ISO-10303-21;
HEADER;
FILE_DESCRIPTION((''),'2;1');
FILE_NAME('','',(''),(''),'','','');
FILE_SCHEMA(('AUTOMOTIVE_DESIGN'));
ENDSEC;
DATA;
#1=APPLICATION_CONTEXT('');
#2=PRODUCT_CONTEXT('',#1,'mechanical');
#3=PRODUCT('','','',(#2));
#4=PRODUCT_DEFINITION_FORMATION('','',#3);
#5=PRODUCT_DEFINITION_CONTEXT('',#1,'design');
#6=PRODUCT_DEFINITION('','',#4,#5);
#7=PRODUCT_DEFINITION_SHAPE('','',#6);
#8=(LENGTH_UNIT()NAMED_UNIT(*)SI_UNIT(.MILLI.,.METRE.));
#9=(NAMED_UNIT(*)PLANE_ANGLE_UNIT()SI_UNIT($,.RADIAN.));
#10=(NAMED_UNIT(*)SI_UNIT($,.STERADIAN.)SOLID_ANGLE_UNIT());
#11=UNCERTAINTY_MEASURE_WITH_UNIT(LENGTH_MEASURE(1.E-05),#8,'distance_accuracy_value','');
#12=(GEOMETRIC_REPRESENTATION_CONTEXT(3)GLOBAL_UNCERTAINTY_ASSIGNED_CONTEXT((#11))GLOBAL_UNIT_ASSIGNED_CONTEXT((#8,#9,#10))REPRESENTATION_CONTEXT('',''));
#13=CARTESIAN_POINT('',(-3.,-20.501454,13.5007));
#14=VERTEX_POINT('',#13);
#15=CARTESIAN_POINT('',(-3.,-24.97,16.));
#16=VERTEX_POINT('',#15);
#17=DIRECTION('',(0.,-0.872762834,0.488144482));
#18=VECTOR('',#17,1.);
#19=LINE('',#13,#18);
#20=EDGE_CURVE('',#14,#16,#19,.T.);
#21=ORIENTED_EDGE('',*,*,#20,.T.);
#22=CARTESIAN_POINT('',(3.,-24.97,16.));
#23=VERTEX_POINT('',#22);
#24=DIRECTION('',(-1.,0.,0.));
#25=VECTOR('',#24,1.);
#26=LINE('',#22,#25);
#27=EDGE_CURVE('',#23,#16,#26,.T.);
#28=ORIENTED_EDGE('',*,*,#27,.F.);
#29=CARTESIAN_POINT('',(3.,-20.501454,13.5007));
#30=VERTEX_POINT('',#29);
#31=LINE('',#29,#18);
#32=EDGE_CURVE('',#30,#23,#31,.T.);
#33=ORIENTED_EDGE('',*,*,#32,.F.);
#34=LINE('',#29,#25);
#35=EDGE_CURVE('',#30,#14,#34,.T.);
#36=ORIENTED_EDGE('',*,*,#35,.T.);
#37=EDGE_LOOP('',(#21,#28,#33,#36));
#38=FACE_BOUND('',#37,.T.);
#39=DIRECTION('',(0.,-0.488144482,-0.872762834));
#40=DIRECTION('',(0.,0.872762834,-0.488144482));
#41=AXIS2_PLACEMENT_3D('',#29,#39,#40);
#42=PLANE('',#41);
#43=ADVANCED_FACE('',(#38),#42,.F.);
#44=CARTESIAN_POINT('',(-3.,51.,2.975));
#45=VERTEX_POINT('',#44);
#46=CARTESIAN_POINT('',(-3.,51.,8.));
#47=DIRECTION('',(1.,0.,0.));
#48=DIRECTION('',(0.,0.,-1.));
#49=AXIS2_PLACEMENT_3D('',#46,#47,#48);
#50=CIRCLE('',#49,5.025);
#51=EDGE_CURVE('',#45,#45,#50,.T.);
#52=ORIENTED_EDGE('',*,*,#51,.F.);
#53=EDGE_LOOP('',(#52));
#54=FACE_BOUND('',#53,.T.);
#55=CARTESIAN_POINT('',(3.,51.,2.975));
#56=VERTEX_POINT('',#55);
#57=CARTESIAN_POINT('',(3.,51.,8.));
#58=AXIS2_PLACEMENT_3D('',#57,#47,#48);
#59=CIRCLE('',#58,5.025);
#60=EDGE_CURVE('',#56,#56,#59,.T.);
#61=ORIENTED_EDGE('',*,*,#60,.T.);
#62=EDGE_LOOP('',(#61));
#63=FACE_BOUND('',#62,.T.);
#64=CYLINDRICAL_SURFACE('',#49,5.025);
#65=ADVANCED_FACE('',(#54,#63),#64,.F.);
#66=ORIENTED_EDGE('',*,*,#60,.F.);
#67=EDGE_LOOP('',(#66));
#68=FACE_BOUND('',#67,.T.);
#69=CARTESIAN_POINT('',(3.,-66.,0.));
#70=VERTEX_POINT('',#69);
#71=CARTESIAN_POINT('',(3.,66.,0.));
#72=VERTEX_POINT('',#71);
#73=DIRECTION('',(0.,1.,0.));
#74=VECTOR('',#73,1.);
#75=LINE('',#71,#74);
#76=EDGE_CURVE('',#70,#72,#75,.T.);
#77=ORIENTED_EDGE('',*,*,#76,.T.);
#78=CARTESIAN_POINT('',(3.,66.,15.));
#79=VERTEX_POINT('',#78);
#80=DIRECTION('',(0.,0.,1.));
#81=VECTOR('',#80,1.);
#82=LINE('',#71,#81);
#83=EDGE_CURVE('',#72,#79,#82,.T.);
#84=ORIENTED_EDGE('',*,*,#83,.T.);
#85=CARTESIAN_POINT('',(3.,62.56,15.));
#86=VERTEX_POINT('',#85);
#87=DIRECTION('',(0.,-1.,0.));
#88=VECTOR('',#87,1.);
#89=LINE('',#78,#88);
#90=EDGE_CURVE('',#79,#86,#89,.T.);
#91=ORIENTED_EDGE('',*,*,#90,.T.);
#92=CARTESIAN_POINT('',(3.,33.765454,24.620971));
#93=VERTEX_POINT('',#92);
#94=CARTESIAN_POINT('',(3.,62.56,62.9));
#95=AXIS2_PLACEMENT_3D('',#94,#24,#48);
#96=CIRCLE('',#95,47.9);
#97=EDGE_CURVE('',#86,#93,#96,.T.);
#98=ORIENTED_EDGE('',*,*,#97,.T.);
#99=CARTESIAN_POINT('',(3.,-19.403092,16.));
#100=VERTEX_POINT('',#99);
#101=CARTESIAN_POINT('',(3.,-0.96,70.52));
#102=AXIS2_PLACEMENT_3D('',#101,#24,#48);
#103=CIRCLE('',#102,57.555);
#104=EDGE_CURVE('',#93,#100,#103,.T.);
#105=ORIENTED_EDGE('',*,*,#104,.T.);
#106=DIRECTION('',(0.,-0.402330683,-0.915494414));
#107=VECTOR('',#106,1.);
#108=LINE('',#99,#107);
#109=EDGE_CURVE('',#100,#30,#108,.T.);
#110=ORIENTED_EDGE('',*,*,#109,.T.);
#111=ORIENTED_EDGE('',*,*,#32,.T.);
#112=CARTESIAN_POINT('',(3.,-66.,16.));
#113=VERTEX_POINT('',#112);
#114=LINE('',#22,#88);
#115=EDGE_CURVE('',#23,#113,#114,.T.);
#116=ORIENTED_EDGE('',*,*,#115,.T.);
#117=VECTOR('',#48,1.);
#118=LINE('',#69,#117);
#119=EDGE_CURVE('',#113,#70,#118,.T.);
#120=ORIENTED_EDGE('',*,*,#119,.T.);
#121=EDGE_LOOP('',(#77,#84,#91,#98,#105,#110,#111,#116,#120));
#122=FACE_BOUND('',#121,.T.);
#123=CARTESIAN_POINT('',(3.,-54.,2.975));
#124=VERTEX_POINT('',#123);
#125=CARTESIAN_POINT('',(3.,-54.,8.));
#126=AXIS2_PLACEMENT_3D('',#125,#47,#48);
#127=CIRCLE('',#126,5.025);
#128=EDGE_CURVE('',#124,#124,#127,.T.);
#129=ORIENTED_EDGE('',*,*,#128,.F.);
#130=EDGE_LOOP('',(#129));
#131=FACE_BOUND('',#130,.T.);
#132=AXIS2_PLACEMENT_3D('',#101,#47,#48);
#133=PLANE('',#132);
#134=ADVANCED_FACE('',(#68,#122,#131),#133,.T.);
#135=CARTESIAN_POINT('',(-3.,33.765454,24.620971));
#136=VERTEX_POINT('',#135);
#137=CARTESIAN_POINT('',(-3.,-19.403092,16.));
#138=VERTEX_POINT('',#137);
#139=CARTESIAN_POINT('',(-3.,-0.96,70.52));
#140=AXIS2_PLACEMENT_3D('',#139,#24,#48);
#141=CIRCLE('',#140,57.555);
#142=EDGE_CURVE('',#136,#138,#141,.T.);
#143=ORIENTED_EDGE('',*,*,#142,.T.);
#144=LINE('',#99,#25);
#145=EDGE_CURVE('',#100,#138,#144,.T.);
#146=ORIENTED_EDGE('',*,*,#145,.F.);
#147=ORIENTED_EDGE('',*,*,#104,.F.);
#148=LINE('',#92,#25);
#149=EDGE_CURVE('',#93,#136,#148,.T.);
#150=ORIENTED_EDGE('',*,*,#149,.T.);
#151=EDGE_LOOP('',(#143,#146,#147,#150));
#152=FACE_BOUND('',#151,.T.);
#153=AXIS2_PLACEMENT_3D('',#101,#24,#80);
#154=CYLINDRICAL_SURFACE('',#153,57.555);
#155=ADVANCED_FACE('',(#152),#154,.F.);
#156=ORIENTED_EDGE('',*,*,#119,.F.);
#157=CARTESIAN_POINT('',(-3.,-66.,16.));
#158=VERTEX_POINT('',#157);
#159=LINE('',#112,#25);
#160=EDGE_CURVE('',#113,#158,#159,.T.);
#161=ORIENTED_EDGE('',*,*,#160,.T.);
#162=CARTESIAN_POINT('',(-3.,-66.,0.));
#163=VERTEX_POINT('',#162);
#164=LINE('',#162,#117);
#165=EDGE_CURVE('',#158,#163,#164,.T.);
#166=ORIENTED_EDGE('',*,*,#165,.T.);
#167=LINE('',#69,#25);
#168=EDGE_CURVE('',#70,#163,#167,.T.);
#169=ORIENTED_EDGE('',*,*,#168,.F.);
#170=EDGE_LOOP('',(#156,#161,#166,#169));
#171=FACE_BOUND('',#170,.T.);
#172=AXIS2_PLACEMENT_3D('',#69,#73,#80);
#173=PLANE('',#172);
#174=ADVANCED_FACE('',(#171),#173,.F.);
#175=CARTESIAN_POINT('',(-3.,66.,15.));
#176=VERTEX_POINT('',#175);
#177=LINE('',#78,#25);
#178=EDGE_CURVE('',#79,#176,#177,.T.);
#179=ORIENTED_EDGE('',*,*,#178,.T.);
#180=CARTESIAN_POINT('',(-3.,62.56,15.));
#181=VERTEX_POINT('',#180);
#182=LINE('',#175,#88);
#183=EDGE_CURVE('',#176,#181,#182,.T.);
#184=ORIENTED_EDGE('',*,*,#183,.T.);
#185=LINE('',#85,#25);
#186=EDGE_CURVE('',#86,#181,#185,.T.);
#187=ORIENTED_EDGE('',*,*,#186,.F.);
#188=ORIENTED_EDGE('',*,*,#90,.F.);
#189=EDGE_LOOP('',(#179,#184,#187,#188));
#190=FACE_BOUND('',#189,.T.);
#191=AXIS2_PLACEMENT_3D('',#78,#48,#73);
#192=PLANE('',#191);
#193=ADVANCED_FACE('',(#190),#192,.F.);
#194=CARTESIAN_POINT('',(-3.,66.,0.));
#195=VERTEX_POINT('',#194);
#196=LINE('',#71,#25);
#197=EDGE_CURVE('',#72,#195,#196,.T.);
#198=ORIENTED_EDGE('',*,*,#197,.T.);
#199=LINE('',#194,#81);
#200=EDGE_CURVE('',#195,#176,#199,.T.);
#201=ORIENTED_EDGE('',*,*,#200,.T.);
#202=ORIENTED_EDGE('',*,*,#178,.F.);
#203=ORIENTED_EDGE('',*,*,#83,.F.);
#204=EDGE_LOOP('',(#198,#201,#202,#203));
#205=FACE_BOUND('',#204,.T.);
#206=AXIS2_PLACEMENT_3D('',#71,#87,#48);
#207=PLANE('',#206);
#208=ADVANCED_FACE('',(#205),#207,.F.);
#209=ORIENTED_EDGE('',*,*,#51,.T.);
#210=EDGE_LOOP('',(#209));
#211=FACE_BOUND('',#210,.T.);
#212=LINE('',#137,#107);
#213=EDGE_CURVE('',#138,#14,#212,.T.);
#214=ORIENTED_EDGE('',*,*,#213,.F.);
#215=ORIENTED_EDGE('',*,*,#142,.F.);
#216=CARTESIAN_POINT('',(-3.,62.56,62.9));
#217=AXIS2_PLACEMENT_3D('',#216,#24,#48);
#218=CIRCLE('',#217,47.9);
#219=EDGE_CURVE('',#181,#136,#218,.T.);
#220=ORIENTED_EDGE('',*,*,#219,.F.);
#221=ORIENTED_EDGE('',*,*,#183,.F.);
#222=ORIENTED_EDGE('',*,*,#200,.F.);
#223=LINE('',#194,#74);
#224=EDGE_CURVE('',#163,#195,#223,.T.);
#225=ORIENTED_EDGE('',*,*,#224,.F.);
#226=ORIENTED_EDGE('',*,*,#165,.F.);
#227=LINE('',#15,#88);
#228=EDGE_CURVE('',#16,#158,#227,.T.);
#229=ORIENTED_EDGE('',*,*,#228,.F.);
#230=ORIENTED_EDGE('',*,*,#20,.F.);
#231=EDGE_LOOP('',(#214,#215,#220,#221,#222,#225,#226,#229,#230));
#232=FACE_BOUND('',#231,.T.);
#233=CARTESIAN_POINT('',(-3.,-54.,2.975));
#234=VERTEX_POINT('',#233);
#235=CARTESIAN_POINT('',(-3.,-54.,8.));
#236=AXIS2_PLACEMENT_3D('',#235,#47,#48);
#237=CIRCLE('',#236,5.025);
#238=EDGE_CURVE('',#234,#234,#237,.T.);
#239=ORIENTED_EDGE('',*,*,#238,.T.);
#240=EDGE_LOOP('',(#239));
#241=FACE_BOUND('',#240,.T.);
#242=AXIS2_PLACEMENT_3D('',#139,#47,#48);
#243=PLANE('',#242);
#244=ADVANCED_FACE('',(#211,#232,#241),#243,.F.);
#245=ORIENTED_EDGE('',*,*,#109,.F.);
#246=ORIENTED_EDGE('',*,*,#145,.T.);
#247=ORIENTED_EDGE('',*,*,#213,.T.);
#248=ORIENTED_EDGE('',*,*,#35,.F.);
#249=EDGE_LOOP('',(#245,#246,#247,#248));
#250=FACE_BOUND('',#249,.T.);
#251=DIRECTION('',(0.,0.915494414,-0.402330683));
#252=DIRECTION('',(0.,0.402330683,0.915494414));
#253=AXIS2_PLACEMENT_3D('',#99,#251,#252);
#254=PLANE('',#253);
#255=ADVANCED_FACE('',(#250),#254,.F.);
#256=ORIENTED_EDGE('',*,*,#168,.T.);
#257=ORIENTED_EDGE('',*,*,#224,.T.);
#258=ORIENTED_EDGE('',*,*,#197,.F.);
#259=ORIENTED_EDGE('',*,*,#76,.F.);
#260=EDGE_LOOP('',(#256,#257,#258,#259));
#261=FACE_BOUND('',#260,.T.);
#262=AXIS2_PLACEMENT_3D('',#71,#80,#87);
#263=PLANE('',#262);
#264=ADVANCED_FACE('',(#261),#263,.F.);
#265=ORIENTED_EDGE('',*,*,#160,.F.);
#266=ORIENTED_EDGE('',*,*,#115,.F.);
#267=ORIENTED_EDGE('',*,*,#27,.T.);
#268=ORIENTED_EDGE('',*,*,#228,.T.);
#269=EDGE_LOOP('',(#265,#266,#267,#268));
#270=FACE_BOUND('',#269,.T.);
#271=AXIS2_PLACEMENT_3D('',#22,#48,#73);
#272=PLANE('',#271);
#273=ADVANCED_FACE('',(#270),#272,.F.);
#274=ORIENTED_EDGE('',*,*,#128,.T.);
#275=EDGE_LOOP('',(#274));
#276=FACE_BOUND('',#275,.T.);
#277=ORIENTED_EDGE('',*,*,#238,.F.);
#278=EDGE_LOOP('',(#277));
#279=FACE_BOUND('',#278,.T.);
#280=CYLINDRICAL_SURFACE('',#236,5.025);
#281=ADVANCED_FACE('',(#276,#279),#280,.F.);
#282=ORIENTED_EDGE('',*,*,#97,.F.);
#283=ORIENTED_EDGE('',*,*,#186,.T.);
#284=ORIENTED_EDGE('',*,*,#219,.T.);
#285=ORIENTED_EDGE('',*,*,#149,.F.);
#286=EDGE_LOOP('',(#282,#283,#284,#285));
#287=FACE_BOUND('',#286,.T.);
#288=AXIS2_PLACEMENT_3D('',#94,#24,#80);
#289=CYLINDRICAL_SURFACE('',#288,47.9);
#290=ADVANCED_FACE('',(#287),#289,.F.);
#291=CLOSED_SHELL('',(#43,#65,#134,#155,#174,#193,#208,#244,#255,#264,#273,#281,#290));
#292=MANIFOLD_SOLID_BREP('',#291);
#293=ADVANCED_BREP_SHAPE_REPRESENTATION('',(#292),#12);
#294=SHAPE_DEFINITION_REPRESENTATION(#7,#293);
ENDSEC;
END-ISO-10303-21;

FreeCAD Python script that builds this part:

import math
import FreeCAD as App
import Part
import Sketcher
from FreeCAD import Vector
Q = App.Units.Quantity

doc = App.newDocument("Part")
body = doc.addObject("PartDesign::Body", "Body")

# Sketch on YZ plane
sketch1 = body.newObject("Sketcher::SketchObject", "Sketch")
sketch1.AttachmentSupport = (doc.getObject("YZ_Plane"), [""])
sketch1.MapMode = "FlatFace"
sketch1.addGeometry([
    Part.LineSegment(Vector(66, 0, 0), Vector(66, 15, 0)),  # 0
    Part.LineSegment(Vector(66, 15, 0), Vector(62.6, 15, 0)),  # 1
    Part.ArcOfCircle(Part.Circle(Vector(62.6, 62.9, 0), Vector(0, 0, 1), 47.9), math.radians(-127), math.radians(-90)),  # 2
    Part.ArcOfCircle(Part.Circle(Vector(-1, 70.5, 0), Vector(0, 0, 1), 57.6), math.radians(-109), math.radians(-53)),  # 3
    Part.LineSegment(Vector(-19.4, 16, 0), Vector(-20.5, 13.5, 0)),  # 4
    Part.LineSegment(Vector(-20.5, 13.5, 0), Vector(-25, 16, 0)),  # 5
    Part.LineSegment(Vector(-25, 16, 0), Vector(-66, 16, 0)),  # 6
    Part.LineSegment(Vector(-66, 16, 0), Vector(-66, 0, 0)),  # 7
    Part.LineSegment(Vector(-66, 0, 0), Vector(66, 0, 0)),  # 8
], False)
sketch1.addConstraint([
    Sketcher.Constraint("Coincident", 0, 2, 1, 1),
    Sketcher.Constraint("Tangent", 1, 2, 2, 2),
    Sketcher.Constraint("Coincident", 2, 1, 3, 2),
    Sketcher.Constraint("Coincident", 3, 1, 4, 1),
    Sketcher.Constraint("Coincident", 4, 2, 5, 1),
    Sketcher.Constraint("Coincident", 5, 2, 6, 1),
    Sketcher.Constraint("Coincident", 6, 2, 7, 1),
    Sketcher.Constraint("Coincident", 7, 2, 8, 1),
    Sketcher.Constraint("Coincident", 8, 2, 0, 1),
    Sketcher.Constraint("Vertical", 0),
    Sketcher.Constraint("Horizontal", 1),
    Sketcher.Constraint("Horizontal", 6),
    Sketcher.Constraint("Vertical", 7),
    Sketcher.Constraint("Horizontal", 8),
    Sketcher.Constraint("Symmetric", 7, 2, 8, 2, -1, 1),
    Sketcher.Constraint("Horizontal", 3, 1, 5, 2),
    Sketcher.Constraint("Radius", 2, Q("47.9 mm")),
    Sketcher.Constraint("DistanceX", 8, 1, 8, 2, Q("132 mm")),
    Sketcher.Constraint("DistanceY", 0, 1, 0, 2, Q("15 mm")),
    Sketcher.Constraint("DistanceY", 7, 2, 7, 1, Q("16 mm")),
    Sketcher.Constraint("Radius", 3, Q("57.555 mm")),
    Sketcher.Constraint("DistanceX", 1, 2, 1, 1, Q("3.44 mm")),
    Sketcher.Constraint("DistanceX", 6, 2, 6, 1, Q("41.03 mm")),
    Sketcher.Constraint("Distance", 4, Q("2.73 mm")),
    Sketcher.Constraint("Distance", 5, Q("5.12 mm")),
    Sketcher.Constraint("DistanceX", 3, 3, -1, 1, Q("0.96 mm")),
    Sketcher.Constraint("DistanceY", -1, 1, 3, 3, Q("70.52 mm")),
])
pad1 = body.newObject("PartDesign::Pad", "Pad")
pad1.Profile = sketch1
pad1.Length = 6
pad1.Midplane = True

# Sketch on YZ plane
sketch2 = body.newObject("Sketcher::SketchObject", "Sketch001")
sketch2.AttachmentSupport = (doc.getObject("YZ_Plane"), [""])
sketch2.MapMode = "FlatFace"
sketch2.AttachmentOffset = App.Placement(Vector(0, 0, 3), App.Rotation())
sketch2.addGeometry([
    Part.Circle(Vector(51, 8, 0), Vector(0, 0, 1), 5),
    Part.Circle(Vector(-54, 8, 0), Vector(0, 0, 1), 5),
], False)
sketch2.addConstraint([
    Sketcher.Constraint("Equal", 0, 1),
    Sketcher.Constraint("Horizontal", 0, 3, 1, 3),
    Sketcher.Constraint("Diameter", 0, Q("10.05 mm")),
    Sketcher.Constraint("DistanceX", -1, 1, 0, 3, Q("51 mm")),
    Sketcher.Constraint("DistanceY", -1, 1, 0, 3, Q("8 mm")),
    Sketcher.Constraint("DistanceX", 1, 3, -1, 1, Q("54 mm")),
])
pocket1 = body.newObject("PartDesign::Pocket", "Pocket")
pocket1.Profile = sketch2
pocket1.Type = "ThroughAll"

doc.recompute()
